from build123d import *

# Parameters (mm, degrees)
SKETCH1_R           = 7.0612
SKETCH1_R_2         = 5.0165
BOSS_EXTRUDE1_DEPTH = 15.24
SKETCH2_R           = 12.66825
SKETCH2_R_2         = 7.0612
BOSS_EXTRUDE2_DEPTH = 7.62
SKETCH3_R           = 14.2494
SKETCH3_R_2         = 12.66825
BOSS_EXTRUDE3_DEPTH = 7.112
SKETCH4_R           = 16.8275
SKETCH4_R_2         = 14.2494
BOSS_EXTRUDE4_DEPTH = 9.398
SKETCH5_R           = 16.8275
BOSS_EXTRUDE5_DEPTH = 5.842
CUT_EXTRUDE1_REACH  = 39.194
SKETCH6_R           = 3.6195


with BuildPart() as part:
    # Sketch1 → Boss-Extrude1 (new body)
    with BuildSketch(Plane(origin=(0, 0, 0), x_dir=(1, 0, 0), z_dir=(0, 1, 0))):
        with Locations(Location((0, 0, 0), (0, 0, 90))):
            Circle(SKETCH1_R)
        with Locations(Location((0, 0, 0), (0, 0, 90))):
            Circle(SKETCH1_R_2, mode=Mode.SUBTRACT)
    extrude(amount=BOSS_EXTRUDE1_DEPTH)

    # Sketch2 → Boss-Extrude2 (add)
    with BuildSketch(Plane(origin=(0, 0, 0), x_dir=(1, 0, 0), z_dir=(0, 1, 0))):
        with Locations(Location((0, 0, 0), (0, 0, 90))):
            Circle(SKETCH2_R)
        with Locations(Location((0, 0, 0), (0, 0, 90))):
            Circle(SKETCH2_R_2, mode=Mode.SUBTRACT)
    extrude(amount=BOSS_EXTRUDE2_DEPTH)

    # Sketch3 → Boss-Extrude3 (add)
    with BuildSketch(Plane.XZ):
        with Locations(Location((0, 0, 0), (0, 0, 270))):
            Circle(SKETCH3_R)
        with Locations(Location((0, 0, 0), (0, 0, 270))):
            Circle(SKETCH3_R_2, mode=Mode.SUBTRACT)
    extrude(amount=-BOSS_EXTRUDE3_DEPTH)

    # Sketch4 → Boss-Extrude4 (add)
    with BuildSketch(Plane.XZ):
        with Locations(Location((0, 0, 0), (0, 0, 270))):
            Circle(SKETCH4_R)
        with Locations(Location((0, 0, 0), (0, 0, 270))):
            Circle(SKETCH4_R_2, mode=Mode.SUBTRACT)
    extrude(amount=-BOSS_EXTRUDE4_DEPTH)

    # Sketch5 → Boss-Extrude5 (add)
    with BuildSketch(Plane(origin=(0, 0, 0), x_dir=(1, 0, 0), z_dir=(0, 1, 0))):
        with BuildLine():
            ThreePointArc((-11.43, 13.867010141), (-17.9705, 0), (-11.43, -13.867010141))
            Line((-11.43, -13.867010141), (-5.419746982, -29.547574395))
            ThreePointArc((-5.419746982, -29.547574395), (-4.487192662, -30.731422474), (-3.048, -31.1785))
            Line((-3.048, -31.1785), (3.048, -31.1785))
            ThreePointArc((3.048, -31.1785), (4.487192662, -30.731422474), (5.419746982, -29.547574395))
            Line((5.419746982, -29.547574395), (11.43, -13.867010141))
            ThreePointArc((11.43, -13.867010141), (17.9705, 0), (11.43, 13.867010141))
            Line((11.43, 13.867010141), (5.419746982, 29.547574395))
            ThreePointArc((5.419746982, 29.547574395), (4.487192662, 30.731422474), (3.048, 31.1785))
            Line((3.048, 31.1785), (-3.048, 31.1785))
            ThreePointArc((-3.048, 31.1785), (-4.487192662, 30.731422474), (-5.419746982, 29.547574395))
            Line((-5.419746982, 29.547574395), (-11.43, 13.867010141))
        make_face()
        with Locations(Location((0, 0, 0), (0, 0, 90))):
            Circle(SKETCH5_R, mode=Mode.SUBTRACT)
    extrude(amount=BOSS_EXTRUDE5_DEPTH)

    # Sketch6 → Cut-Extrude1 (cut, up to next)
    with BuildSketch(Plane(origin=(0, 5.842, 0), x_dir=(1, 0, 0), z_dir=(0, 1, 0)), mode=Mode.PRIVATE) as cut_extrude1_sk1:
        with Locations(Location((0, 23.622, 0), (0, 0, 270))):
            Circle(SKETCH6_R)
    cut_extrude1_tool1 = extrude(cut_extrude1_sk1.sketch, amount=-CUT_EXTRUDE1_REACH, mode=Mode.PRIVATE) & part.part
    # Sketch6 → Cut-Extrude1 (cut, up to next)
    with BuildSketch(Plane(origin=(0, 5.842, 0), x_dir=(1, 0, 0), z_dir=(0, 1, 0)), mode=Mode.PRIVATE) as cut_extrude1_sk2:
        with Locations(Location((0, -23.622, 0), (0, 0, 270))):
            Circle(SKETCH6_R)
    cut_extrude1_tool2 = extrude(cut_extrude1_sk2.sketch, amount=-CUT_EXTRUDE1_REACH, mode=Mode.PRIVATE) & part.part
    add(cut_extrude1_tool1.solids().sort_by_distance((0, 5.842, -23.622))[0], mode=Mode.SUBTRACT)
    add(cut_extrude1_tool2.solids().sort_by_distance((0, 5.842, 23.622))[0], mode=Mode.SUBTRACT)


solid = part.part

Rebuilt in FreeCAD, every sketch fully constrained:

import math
import FreeCAD as App
import Part
import Sketcher

V = App.Vector
Q = App.Units.Quantity

doc = App.newDocument("Part")
body = doc.addObject("PartDesign::Body", "Body")

sketch1 = body.newObject("Sketcher::SketchObject", "Sketch")
sketch1.AttachmentSupport = (doc.getObject("XZ_Plane"), [""])
sketch1.MapMode = "FlatFace"
sketch1.addGeometry(Part.Circle(V(0, 0, 0), V(0, 0, 1), 7), False)
sketch1.addGeometry(Part.Circle(V(0, 0, 0), V(0, 0, 1), 5), False)
sketch1.addConstraint(Sketcher.Constraint("Coincident", 0, 3, -1, 1))
sketch1.addConstraint(Sketcher.Constraint("Coincident", 1, 3, -1, 1))
sketch1.addConstraint(Sketcher.Constraint("Diameter", 0, Q("0.556 in")))
sketch1.addConstraint(Sketcher.Constraint("Diameter", 1, Q("0.395 in")))
pad1 = body.newObject("PartDesign::Pad", "Pad")
pad1.Profile = sketch1
pad1.Length = Q("0.6 in")
pad1.Reversed = True

sketch2 = body.newObject("Sketcher::SketchObject", "Sketch001")
sketch2.AttachmentSupport = (doc.getObject("XZ_Plane"), [""])
sketch2.MapMode = "FlatFace"
sketch2.addGeometry(Part.Circle(V(0, 0, 0), V(0, 0, 1), 13), False)
sketch2.addGeometry(Part.Circle(V(0, 0, 0), V(0, 0, 1), 7), False)
sketch2.addConstraint(Sketcher.Constraint("Coincident", 0, 3, -1, 1))
sketch2.addConstraint(Sketcher.Constraint("Coincident", 1, 3, -1, 1))
sketch2.addConstraint(Sketcher.Constraint("Diameter", 1, Q("0.556 in")))
sketch2.addConstraint(Sketcher.Constraint("Diameter", 0, Q("0.9975 in")))
pad2 = body.newObject("PartDesign::Pad", "Pad001")
pad2.Profile = sketch2
pad2.Length = Q("0.3 in")
pad2.Reversed = True

sketch3 = body.newObject("Sketcher::SketchObject", "Sketch002")
sketch3.AttachmentSupport = (doc.getObject("XZ_Plane"), [""])
sketch3.MapMode = "FlatFace"
sketch3.addGeometry(Part.Circle(V(0, 0, 0), V(0, 0, 1), 14), False)
sketch3.addGeometry(Part.Circle(V(0, 0, 0), V(0, 0, 1), 13), False)
sketch3.addConstraint(Sketcher.Constraint("Coincident", 0, 3, -1, 1))
sketch3.addConstraint(Sketcher.Constraint("Coincident", 1, 3, -1, 1))
sketch3.addConstraint(Sketcher.Constraint("Diameter", 0, Q("1.122 in")))
sketch3.addConstraint(Sketcher.Constraint("Diameter", 1, Q("0.9975 in")))
pad3 = body.newObject("PartDesign::Pad", "Pad002")
pad3.Profile = sketch3
pad3.Length = Q("0.28 in")
pad3.Reversed = True

sketch4 = body.newObject("Sketcher::SketchObject", "Sketch003")
sketch4.AttachmentSupport = (doc.getObject("XZ_Plane"), [""])
sketch4.MapMode = "FlatFace"
sketch4.addGeometry(Part.Circle(V(0, 0, 0), V(0, 0, 1), 17), False)
sketch4.addGeometry(Part.Circle(V(0, 0, 0), V(0, 0, 1), 14), False)
sketch4.addConstraint(Sketcher.Constraint("Coincident", 0, 3, -1, 1))
sketch4.addConstraint(Sketcher.Constraint("Coincident", 1, 3, -1, 1))
sketch4.addConstraint(Sketcher.Constraint("Diameter", 0, Q("1.325 in")))
sketch4.addConstraint(Sketcher.Constraint("Diameter", 1, Q("1.122 in")))
pad4 = body.newObject("PartDesign::Pad", "Pad003")
pad4.Profile = sketch4
pad4.Length = Q("0.37 in")
pad4.Reversed = True

sketch5 = body.newObject("Sketcher::SketchObject", "Sketch004")
sketch5.AttachmentSupport = (doc.getObject("XZ_Plane"), [""])
sketch5.MapMode = "FlatFace"
sketch5.addGeometry(Part.ArcOfCircle(Part.Circle(V(0, 0, 0), V(0, 0, 1), 18), math.radians(129), math.radians(231)), False)
sketch5.addGeometry(Part.LineSegment(V(-11.4, 13.9, 0), V(-5.4, 29.5, 0)), False)
sketch5.addGeometry(Part.ArcOfCircle(Part.Circle(V(-3, 28.6, 0), V(0, 0, 1), 2.5), math.radians(90), math.radians(159)), False)
sketch5.addGeometry(Part.LineSegment(V(-3, 31.2, 0), V(3, 31.2, 0)), False)
sketch5.addGeometry(Part.ArcOfCircle(Part.Circle(V(3, 28.6, 0), V(0, 0, 1), 2.5), math.radians(21), math.radians(90)), False)
sketch5.addGeometry(Part.LineSegment(V(5.4, 29.5, 0), V(11.4, 13.9, 0)), False)
sketch5.addGeometry(Part.ArcOfCircle(Part.Circle(V(0, 0, 0), V(0, 0, 1), 18), math.radians(-51), math.radians(51)), False)
sketch5.addGeometry(Part.LineSegment(V(11.4, -13.9, 0), V(5.4, -29.5, 0)), False)
sketch5.addGeometry(Part.ArcOfCircle(Part.Circle(V(3, -28.6, 0), V(0, 0, 1), 2.5), math.radians(-90), math.radians(-21)), False)
sketch5.addGeometry(Part.LineSegment(V(3, -31.2, 0), V(-3, -31.2, 0)), False)
sketch5.addGeometry(Part.ArcOfCircle(Part.Circle(V(-3, -28.6, 0), V(0, 0, 1), 2.5), math.radians(-159), math.radians(-90)), False)
sketch5.addGeometry(Part.LineSegment(V(-5.4, -29.5, 0), V(-11.4, -13.9, 0)), False)
sketch5.addGeometry(Part.Circle(V(0, 0, 0), V(0, 0, 1), 16.8), False)
sketch5.addConstraint(Sketcher.Constraint("Coincident", 0, 1, 1, 1))
sketch5.addConstraint(Sketcher.Constraint("Tangent", 1, 2, 2, 2))
sketch5.addConstraint(Sketcher.Constraint("Tangent", 2, 1, 3, 1))
sketch5.addConstraint(Sketcher.Constraint("Tangent", 3, 2, 4, 2))
sketch5.addConstraint(Sketcher.Constraint("Tangent", 4, 1, 5, 1))
sketch5.addConstraint(Sketcher.Constraint("Coincident", 5, 2, 6, 2))
sketch5.addConstraint(Sketcher.Constraint("Coincident", 6, 1, 7, 1))
sketch5.addConstraint(Sketcher.Constraint("Tangent", 7, 2, 8, 2))
sketch5.addConstraint(Sketcher.Constraint("Tangent", 8, 1, 9, 1))
sketch5.addConstraint(Sketcher.Constraint("Tangent", 9, 2, 10, 2))
sketch5.addConstraint(Sketcher.Constraint("Tangent", 10, 1, 11, 1))
sketch5.addConstraint(Sketcher.Constraint("Coincident", 11, 2, 0, 2))
sketch5.addConstraint(Sketcher.Constraint("Horizontal", 3))
sketch5.addConstraint(Sketcher.Constraint("Horizontal", 9))
sketch5.addConstraint(Sketcher.Constraint("Coincident", 0, 3, -1, 1))
sketch5.addConstraint(Sketcher.Constraint("Coincident", 6, 3, -1, 1))
sketch5.addConstraint(Sketcher.Constraint("Coincident", 12, 3, -1, 1))
sketch5.addConstraint(Sketcher.Constraint("Equal", 2, 4))
sketch5.addConstraint(Sketcher.Constraint("Equal", 0, 6))
sketch5.addConstraint(Sketcher.Constraint("Equal", 4, 8))
sketch5.addConstraint(Sketcher.Constraint("Equal", 8, 10))
sketch5.addConstraint(Sketcher.Constraint("Symmetric", 2, 3, 8, 3, -1, 1))
sketch5.addConstraint(Sketcher.Constraint("Symmetric", 4, 1, 10, 1, -1, 1))
sketch5.addConstraint(Sketcher.Constraint("Symmetric", 1, 2, 4, 1, -2))
sketch5.addConstraint(Sketcher.Constraint("Parallel", 1, 7))
sketch5.addConstraint(Sketcher.Constraint("Radius", 2, Q("0.1 in")))
sketch5.addConstraint(Sketcher.Constraint("Diameter", 12, Q("1.325 in")))
sketch5.addConstraint(Sketcher.Constraint("DistanceX", 3, 1, 3, 2, Q("0.24 in")))
sketch5.addConstraint(Sketcher.Constraint("Radius", 0, Q("0.7075 in")))
sketch5.addConstraint(Sketcher.Constraint("DistanceX", 0, 1, -1, 1, Q("0.45 in")))
sketch5.addConstraint(Sketcher.Constraint("DistanceY", 8, 3, 4, 3, Q("2.255 in")))
pad5 = body.newObject("PartDesign::Pad", "Pad004")
pad5.Profile = sketch5
pad5.Length = Q("0.23 in")
pad5.Reversed = True

sketch6 = body.newObject("Sketcher::SketchObject", "Sketch005")
sketch6.AttachmentSupport = (doc.getObject("XZ_Plane"), [""])
sketch6.MapMode = "FlatFace"
sketch6.AttachmentOffset = App.Placement(V(0, 0, -0.23 * 25.4), App.Rotation())
sketch6.addGeometry(Part.Circle(V(0, -23.6, 0), V(0, 0, 1), 3.6), False)
sketch6.addConstraint(Sketcher.Constraint("PointOnObject", 0, 3, -2))
sketch6.addConstraint(Sketcher.Constraint("Diameter", 0, Q("0.285 in")))
sketch6.addConstraint(Sketcher.Constraint("DistanceY", 0, 3, -1, 1, Q("0.93 in")))
pocket1 = body.newObject("PartDesign::Pocket", "Pocket")
pocket1.Profile = sketch6
pocket1.Type = "UpToFirst"
pocket1.Reversed = True

sketch7 = body.newObject("Sketcher::SketchObject", "Sketch006")
sketch7.AttachmentSupport = (doc.getObject("XZ_Plane"), [""])
sketch7.MapMode = "FlatFace"
sketch7.AttachmentOffset = App.Placement(V(0, 0, -0.23 * 25.4), App.Rotation())
sketch7.addGeometry(Part.Circle(V(0, 23.6, 0), V(0, 0, 1), 3.6), False)
sketch7.addConstraint(Sketcher.Constraint("PointOnObject", 0, 3, -2))
sketch7.addConstraint(Sketcher.Constraint("Diameter", 0, Q("0.285 in")))
sketch7.addConstraint(Sketcher.Constraint("DistanceY", -1, 1, 0, 3, Q("0.93 in")))
pocket2 = body.newObject("PartDesign::Pocket", "Pocket001")
pocket2.Profile = sketch7
pocket2.Type = "UpToFirst"
pocket2.Reversed = True

doc.recompute()
